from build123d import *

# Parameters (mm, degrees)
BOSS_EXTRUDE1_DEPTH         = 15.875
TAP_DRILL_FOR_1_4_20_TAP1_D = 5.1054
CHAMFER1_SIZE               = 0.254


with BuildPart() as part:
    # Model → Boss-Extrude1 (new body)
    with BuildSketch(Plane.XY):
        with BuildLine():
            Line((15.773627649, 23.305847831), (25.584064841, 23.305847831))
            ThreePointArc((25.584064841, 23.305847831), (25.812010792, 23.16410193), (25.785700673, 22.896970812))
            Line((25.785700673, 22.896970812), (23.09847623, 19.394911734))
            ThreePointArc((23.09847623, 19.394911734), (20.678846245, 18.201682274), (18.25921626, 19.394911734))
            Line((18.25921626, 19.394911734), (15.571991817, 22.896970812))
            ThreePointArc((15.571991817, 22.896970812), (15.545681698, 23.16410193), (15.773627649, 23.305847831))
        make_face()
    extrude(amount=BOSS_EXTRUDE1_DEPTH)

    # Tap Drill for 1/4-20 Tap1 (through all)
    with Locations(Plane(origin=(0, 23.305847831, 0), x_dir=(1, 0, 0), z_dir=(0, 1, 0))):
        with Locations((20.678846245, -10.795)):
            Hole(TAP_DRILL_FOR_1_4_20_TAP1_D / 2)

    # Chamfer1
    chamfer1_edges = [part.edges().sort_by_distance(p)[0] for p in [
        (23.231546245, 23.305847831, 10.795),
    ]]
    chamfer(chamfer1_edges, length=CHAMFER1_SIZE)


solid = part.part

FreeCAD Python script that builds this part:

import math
import FreeCAD as App
import Part
import Sketcher
from FreeCAD import Vector
Q = App.Units.Quantity


def edges_at(feature, points):
    """Names of the edges that pass closest to the given points."""
    edges = feature.Shape.Edges
    near = lambda p: min(range(len(edges)), key=lambda i: edges[i].distToShape(Part.Vertex(*p))[0])
    return sorted({f"Edge{near(p) + 1}" for p in points})

doc = App.newDocument("Part")
body = doc.addObject("PartDesign::Body", "Body")

# Sketch on XY plane
sketch1 = body.newObject("Sketcher::SketchObject", "Sketch")
sketch1.AttachmentSupport = (doc.getObject("XY_Plane"), [""])
sketch1.MapMode = "FlatFace"
sketch1.addGeometry(Part.LineSegment(Vector(25.584065, 23.305848, 0), Vector(15.773628, 23.305848, 0)), False)
sketch1.addGeometry(Part.ArcOfCircle(Part.Circle(Vector(15.773628, 23.051691, 0), Vector(0, 0, 1), 0.254156), math.radians(90), math.radians(217.5)), False)
sketch1.addGeometry(Part.LineSegment(Vector(15.571992, 22.896971, 0), Vector(18.259216, 19.394912, 0)), False)
sketch1.addGeometry(Part.ArcOfCircle(Part.Circle(Vector(20.678846, 21.251559, 0), Vector(0, 0, 1), 3.049877), math.radians(-142.5), math.radians(-37.5)), False)
sketch1.addGeometry(Part.LineSegment(Vector(23.098476, 19.394912, 0), Vector(25.785701, 22.896971, 0)), False)
sketch1.addGeometry(Part.ArcOfCircle(Part.Circle(Vector(25.584065, 23.051691, 0), Vector(0, 0, 1), 0.254156), math.radians(-37.5), math.radians(90)), False)
sketch1.addConstraint(Sketcher.Constraint("Tangent", 0, 2, 1, 1))
sketch1.addConstraint(Sketcher.Constraint("Tangent", 1, 2, 2, 1))
sketch1.addConstraint(Sketcher.Constraint("Tangent", 2, 2, 3, 1))
sketch1.addConstraint(Sketcher.Constraint("Tangent", 3, 2, 4, 1))
sketch1.addConstraint(Sketcher.Constraint("Tangent", 4, 2, 5, 1))
sketch1.addConstraint(Sketcher.Constraint("Tangent", 5, 2, 0, 1))
sketch1.addConstraint(Sketcher.Constraint("Horizontal", 0))
sketch1.addConstraint(Sketcher.Constraint("Equal", 1, 5))
sketch1.addConstraint(Sketcher.Constraint("Horizontal", 2, 2, 3, 2))
sketch1.addConstraint(Sketcher.Constraint("Angle", 2, Q("-52.5 deg")))
sketch1.addConstraint(Sketcher.Constraint("Radius", 1, 0.254156))
sketch1.addConstraint(Sketcher.Constraint("Radius", 3, 3.049877))
sketch1.addConstraint(Sketcher.Constraint("DistanceX", -1, 1, 4, 2, 25.785701))
sketch1.addConstraint(Sketcher.Constraint("Distance", 2, 4.414249))
sketch1.addConstraint(Sketcher.Constraint("DistanceY", -1, 1, 1, 3, 23.051691))
pad1 = body.newObject("PartDesign::Pad", "Pad")
pad1.Profile = sketch1
pad1.Length = Q("0.625 in")

# Sketch on XZ plane
sketch2 = body.newObject("Sketcher::SketchObject", "Sketch001")
sketch2.AttachmentSupport = (doc.getObject("XZ_Plane"), [""])
sketch2.MapMode = "FlatFace"
sketch2.AttachmentOffset = App.Placement(Vector(0, 0, -23.305848), App.Rotation())
sketch2.addGeometry(Part.Circle(Vector(20.678846, 10.795, 0), Vector(0, 0, 1), 2.5527), False)
sketch2.addConstraint(Sketcher.Constraint("Diameter", 0, Q("0.201 in")))
sketch2.addConstraint(Sketcher.Constraint("DistanceY", -1, 1, 0, 3, Q("0.425 in")))
sketch2.addConstraint(Sketcher.Constraint("DistanceX", -1, 1, 0, 3, 20.678846))
doc.recompute()
hole = body.newObject("PartDesign::Hole", "Hole")
hole.Profile = sketch2
hole.ThreadType = "None"
hole.Diameter = Q("0.201 in")
hole.DepthType = "ThroughAll"
hole.Reversed = True
doc.recompute()

chamfer = body.newObject("PartDesign::Chamfer", "Chamfer")
chamfer.Base = (hole, edges_at(hole, [(23.232, 23.306, 10.795)]))
chamfer.Size = Q("0.01 in")

doc.recompute()
